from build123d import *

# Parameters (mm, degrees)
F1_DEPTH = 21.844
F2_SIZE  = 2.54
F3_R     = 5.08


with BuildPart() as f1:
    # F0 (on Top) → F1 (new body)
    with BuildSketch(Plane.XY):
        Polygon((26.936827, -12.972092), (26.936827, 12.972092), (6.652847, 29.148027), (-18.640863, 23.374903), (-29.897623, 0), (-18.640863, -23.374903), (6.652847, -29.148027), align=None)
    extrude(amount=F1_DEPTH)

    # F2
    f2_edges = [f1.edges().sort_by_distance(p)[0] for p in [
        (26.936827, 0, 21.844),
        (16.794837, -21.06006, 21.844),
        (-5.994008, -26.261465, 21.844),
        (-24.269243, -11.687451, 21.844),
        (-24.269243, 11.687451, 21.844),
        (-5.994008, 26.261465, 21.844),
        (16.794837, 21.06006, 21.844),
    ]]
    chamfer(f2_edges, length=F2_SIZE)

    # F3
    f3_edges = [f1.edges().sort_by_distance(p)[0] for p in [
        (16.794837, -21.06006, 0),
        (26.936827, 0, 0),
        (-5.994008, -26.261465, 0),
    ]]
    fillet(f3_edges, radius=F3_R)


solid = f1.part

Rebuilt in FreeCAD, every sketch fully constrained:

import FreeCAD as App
import Part
import Sketcher

V = App.Vector
Q = App.Units.Quantity


def edges_at(feature, points):
    """Names of the edges that pass closest to the given points."""
    edges = feature.Shape.Edges
    near = lambda p: min(range(len(edges)), key=lambda i: edges[i].distToShape(Part.Vertex(*p))[0])
    return sorted({f"Edge{near(p) + 1}" for p in points})

doc = App.newDocument("Part")
body = doc.addObject("PartDesign::Body", "Body")

sketch1 = body.newObject("Sketcher::SketchObject", "Sketch")
sketch1.AttachmentSupport = (doc.getObject("XY_Plane"), [""])
sketch1.MapMode = "FlatFace"
sketch1.addGeometry(Part.LineSegment(V(27, -13, 0), V(27, 13, 0)), False)
sketch1.addGeometry(Part.LineSegment(V(27, 13, 0), V(7, 29, 0)), False)
sketch1.addGeometry(Part.LineSegment(V(7, 29, 0), V(-19, 23, 0)), False)
sketch1.addGeometry(Part.LineSegment(V(-19, 23, 0), V(-30, 0, 0)), False)
sketch1.addGeometry(Part.LineSegment(V(-30, 0, 0), V(-19, -23, 0)), False)
sketch1.addGeometry(Part.LineSegment(V(-19, -23, 0), V(7, -29, 0)), False)
sketch1.addGeometry(Part.LineSegment(V(7, -29, 0), V(27, -13, 0)), False)
sketch1.addConstraint(Sketcher.Constraint("Coincident", 0, 2, 1, 1))
sketch1.addConstraint(Sketcher.Constraint("Coincident", 1, 2, 2, 1))
sketch1.addConstraint(Sketcher.Constraint("Coincident", 2, 2, 3, 1))
sketch1.addConstraint(Sketcher.Constraint("Coincident", 3, 2, 4, 1))
sketch1.addConstraint(Sketcher.Constraint("Coincident", 4, 2, 5, 1))
sketch1.addConstraint(Sketcher.Constraint("Coincident", 5, 2, 6, 1))
sketch1.addConstraint(Sketcher.Constraint("Coincident", 6, 2, 0, 1))
sketch1.addConstraint(Sketcher.Constraint("Vertical", 0))
sketch1.addConstraint(Sketcher.Constraint("Symmetric", 2, 2, 4, 2, -1))
sketch1.addConstraint(Sketcher.Constraint("Symmetric", 1, 2, 5, 2, -1))
sketch1.addConstraint(Sketcher.Constraint("PointOnObject", 3, 2, -1))
sketch1.addConstraint(Sketcher.Constraint("Equal", 1, 2))
sketch1.addConstraint(Sketcher.Constraint("Equal", 2, 3))
sketch1.addConstraint(Sketcher.Constraint("Equal", 5, 6))
sketch1.addConstraint(Sketcher.Constraint("DistanceY", 0, 1, 0, 2, 25.944184))
sketch1.addConstraint(Sketcher.Constraint("DistanceX", 1, 2, 0, 2, 20.28398))
sketch1.addConstraint(Sketcher.Constraint("DistanceX", 2, 2, 1, 2, 25.29371))
sketch1.addConstraint(Sketcher.Constraint("DistanceY", 0, 2, 2, 2, 10.402811))
sketch1.addConstraint(Sketcher.Constraint("DistanceX", -1, 1, 0, 2, 26.936827))
pad1 = body.newObject("PartDesign::Pad", "Pad")
pad1.Profile = sketch1
pad1.Length = Q("0.86 in")
doc.recompute()

chamfer = body.newObject("PartDesign::Chamfer", "Chamfer")
chamfer.Base = (pad1, edges_at(pad1, [
    (26.937, 0, 21.844),
    (16.795, -21.06, 21.844),
    (-5.994, -26.261, 21.844),
    (-24.269, -11.687, 21.844),
    (-24.269, 11.687, 21.844),
    (-5.994, 26.261, 21.844),
    (16.795, 21.06, 21.844),
]))
chamfer.Size = Q("0.1 in")
doc.recompute()

fillet = body.newObject("PartDesign::Fillet", "Fillet")
fillet.Base = (chamfer, edges_at(chamfer, [(16.795, -21.06, 0), (26.937, 0, 0), (-5.994, -26.261, 0)]))
fillet.Radius = Q("0.2 in")

doc.recompute()
